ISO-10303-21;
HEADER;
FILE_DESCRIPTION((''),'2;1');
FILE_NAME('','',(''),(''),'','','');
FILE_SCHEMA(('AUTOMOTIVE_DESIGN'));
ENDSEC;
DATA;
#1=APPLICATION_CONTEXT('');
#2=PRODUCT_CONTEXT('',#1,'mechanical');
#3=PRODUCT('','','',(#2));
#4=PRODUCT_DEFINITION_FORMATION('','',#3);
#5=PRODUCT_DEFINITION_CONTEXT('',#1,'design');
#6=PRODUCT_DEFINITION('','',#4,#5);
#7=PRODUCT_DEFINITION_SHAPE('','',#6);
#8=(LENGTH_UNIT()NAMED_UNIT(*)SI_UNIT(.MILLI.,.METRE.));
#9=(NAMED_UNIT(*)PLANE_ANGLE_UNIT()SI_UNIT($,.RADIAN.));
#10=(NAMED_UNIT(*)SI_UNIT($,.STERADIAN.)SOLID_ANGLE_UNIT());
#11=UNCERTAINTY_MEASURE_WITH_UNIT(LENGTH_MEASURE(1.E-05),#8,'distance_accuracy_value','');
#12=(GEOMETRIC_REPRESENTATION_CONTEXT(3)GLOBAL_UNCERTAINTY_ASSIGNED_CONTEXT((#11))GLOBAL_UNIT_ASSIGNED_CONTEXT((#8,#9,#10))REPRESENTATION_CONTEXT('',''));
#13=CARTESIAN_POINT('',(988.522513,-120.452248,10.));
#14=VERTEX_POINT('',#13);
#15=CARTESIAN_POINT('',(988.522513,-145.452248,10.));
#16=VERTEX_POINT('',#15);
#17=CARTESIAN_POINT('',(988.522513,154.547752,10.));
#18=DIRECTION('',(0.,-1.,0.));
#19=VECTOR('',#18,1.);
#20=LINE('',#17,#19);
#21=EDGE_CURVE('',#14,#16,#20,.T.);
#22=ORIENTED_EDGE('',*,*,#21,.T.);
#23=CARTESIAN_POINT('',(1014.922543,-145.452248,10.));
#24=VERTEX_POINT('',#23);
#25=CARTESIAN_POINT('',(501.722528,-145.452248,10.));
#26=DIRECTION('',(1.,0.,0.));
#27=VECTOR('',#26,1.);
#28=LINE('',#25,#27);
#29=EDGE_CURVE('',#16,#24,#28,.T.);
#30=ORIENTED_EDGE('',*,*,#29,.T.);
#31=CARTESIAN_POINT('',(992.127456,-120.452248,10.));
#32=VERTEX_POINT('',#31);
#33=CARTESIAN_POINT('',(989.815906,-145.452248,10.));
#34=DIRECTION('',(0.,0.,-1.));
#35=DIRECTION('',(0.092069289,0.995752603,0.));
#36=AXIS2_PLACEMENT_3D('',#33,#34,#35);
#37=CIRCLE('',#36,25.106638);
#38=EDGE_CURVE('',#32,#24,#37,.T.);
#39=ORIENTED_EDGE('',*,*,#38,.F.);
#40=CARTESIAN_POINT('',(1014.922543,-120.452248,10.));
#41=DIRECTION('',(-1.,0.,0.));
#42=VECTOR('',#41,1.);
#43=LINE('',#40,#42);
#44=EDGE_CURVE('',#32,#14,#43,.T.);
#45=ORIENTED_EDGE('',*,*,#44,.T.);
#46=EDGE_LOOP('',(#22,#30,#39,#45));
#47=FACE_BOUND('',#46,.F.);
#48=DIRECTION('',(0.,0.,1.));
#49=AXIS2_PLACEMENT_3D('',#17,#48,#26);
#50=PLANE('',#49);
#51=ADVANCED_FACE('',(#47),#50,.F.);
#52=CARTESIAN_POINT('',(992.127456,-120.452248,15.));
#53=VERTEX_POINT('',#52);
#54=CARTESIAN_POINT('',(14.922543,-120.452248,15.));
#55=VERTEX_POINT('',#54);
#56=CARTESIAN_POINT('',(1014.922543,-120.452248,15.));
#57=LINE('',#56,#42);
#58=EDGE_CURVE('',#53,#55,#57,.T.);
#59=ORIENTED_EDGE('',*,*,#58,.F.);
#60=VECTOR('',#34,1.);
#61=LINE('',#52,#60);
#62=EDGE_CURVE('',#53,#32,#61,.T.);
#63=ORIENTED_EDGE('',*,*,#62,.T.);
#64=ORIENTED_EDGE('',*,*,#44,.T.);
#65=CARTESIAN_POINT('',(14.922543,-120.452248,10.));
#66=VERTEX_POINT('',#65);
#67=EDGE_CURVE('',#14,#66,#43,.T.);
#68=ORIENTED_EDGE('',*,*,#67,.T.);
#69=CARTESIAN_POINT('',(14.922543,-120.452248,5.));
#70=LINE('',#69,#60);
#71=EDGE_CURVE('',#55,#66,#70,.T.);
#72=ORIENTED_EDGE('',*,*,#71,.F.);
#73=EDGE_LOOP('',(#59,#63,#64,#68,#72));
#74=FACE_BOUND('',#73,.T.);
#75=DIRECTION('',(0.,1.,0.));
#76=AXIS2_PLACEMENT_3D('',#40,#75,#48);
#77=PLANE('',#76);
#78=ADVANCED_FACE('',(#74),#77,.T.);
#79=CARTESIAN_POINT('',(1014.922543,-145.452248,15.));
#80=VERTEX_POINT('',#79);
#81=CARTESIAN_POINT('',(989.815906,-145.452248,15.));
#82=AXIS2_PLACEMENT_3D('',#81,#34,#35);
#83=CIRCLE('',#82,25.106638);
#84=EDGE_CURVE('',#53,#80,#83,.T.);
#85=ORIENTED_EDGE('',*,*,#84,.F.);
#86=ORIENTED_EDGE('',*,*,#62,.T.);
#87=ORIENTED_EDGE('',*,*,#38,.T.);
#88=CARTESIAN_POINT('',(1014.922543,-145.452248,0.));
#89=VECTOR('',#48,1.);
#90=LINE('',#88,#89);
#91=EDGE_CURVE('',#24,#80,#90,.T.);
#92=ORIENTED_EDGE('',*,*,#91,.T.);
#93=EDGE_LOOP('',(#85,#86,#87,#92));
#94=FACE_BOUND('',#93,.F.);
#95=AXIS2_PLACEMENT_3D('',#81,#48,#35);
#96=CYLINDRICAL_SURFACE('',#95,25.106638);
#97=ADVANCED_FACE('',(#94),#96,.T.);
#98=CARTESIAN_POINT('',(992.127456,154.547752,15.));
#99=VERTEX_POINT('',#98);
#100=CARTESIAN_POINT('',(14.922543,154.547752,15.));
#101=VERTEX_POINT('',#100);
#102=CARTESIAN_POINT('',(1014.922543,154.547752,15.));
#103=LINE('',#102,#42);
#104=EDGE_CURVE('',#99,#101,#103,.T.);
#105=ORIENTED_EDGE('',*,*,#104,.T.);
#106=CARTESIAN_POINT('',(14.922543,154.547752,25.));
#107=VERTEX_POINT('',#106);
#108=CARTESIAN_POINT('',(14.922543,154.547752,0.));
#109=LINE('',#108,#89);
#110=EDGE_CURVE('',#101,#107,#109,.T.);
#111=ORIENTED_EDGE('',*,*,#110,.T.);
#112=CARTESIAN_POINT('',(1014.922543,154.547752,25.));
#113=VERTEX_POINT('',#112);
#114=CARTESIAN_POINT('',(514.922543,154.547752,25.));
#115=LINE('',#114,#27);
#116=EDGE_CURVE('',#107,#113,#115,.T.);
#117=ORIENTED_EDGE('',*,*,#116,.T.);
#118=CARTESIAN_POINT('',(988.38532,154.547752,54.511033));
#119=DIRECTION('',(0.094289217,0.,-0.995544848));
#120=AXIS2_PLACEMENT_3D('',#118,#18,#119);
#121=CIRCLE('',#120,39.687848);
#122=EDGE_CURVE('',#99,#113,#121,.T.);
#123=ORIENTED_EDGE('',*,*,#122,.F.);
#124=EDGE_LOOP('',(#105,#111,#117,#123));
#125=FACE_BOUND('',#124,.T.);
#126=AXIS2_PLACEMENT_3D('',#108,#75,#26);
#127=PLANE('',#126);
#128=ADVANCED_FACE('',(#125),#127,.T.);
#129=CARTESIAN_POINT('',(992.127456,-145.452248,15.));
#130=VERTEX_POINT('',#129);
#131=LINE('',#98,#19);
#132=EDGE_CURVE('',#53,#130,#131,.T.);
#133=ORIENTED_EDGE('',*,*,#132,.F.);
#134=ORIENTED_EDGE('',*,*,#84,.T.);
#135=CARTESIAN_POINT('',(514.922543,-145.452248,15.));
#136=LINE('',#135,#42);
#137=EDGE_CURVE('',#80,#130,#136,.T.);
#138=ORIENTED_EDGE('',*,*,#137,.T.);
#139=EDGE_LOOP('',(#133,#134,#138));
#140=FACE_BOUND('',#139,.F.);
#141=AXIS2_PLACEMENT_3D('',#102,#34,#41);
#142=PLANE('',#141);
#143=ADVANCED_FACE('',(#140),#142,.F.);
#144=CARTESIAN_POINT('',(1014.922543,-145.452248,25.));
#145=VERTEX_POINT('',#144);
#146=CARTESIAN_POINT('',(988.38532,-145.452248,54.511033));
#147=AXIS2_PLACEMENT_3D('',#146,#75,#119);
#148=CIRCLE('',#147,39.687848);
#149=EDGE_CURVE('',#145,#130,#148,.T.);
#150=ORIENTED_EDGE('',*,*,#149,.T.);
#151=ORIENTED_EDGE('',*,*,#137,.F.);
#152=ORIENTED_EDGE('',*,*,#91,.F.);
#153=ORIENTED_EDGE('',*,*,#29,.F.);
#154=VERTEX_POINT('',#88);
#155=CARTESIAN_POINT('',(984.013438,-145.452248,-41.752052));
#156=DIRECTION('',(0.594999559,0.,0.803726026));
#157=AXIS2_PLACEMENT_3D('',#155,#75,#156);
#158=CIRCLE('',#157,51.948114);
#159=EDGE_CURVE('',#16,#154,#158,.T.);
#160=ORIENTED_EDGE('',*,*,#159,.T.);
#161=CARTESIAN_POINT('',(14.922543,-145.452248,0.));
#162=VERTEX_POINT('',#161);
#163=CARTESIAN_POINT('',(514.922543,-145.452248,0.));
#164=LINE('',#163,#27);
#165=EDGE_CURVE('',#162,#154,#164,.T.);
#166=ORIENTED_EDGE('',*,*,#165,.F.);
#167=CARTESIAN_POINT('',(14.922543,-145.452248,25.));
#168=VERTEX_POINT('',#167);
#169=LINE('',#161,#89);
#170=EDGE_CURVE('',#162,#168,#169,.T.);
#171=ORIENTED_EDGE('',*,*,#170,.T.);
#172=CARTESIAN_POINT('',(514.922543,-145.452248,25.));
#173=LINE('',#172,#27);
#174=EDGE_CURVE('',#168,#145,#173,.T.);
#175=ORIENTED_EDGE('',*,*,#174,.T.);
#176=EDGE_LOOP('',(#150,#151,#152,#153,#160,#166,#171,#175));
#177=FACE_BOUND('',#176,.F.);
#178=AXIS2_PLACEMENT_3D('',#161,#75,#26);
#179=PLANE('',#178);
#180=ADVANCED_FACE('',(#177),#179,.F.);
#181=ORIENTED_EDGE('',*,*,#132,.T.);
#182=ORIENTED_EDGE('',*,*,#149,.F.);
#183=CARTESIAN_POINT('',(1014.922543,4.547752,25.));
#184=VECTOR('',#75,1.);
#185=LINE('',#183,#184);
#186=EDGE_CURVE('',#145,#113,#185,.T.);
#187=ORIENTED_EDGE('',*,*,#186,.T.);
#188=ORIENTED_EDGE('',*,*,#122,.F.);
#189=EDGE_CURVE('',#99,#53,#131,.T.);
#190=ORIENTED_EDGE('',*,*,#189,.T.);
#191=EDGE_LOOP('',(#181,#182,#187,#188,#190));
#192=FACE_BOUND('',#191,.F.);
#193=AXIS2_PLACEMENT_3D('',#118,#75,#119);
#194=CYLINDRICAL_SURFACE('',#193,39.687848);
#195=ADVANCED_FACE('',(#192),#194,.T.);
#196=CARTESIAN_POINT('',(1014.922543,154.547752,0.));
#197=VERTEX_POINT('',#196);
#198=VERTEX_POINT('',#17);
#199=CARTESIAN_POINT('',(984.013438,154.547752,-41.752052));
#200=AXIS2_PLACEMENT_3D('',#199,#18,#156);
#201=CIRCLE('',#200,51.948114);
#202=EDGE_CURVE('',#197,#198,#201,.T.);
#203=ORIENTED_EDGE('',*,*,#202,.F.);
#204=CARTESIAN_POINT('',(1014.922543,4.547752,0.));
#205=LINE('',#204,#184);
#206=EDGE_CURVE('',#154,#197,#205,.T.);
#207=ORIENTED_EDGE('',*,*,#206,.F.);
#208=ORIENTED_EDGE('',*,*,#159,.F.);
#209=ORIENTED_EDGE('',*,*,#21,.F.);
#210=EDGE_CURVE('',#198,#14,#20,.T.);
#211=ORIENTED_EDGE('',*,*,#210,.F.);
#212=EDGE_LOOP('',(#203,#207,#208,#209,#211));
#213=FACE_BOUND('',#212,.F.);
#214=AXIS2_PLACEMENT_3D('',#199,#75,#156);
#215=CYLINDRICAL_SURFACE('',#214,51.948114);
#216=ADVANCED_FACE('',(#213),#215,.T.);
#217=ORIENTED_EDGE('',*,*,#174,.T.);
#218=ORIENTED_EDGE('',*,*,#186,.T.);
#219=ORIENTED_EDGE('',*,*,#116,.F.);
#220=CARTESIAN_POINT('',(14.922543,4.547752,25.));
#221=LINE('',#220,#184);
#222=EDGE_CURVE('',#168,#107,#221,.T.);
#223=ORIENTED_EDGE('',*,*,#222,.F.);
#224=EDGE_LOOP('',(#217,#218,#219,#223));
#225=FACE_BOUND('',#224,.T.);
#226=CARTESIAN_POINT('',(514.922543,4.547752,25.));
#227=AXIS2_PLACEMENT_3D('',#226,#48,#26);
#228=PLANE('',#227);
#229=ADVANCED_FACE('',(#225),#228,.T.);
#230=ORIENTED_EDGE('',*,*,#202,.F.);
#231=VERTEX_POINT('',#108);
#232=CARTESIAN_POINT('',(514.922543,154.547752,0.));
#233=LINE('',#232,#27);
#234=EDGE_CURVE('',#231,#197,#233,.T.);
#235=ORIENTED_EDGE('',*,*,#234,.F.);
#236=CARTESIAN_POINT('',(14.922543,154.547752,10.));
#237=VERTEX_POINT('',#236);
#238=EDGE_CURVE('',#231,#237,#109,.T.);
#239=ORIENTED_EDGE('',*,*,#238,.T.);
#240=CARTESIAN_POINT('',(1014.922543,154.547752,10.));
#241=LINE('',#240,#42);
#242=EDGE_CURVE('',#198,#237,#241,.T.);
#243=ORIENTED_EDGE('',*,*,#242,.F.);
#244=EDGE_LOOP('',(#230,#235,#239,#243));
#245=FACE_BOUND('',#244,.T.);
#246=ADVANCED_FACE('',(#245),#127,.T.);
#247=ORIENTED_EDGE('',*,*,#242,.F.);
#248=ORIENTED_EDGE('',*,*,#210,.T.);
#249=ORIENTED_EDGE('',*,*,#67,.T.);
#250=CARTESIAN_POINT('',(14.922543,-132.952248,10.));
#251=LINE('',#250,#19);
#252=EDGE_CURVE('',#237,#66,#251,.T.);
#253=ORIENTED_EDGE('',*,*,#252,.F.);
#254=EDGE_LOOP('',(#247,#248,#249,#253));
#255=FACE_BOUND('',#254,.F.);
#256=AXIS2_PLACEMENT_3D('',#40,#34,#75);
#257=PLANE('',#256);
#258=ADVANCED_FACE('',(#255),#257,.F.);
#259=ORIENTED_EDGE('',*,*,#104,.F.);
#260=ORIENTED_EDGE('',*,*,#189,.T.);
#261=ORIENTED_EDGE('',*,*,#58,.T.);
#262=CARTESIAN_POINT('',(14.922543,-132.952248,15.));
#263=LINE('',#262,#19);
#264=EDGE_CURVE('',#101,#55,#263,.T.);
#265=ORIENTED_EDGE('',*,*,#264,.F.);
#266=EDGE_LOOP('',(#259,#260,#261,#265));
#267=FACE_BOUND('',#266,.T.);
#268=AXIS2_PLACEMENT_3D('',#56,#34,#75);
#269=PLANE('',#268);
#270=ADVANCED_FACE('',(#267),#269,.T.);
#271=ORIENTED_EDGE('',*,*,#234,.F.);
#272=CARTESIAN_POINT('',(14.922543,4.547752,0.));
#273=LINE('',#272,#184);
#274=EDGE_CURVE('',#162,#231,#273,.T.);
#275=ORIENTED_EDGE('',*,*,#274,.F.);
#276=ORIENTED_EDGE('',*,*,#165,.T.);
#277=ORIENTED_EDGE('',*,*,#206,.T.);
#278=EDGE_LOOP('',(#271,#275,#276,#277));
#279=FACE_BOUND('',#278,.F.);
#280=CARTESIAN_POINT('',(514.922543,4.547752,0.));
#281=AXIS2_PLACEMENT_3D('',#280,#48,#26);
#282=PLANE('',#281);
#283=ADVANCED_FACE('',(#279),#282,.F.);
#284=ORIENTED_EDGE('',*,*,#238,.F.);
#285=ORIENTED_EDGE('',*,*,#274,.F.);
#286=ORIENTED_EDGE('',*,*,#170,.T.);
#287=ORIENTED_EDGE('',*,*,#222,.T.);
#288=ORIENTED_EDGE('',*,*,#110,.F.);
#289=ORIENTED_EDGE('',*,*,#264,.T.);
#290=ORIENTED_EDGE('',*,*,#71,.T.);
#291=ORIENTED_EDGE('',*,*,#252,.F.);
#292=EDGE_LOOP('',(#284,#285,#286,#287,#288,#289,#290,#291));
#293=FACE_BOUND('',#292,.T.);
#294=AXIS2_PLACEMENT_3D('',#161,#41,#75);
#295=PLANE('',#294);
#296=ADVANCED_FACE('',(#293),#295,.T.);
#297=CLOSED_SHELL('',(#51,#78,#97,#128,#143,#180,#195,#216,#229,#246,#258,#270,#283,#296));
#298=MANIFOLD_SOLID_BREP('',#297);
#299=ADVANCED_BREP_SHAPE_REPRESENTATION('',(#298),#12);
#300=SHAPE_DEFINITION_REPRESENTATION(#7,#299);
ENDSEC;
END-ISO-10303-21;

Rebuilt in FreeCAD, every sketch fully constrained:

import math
import FreeCAD as App
import Part
import Sketcher
from FreeCAD import Vector
Q = App.Units.Quantity

doc = App.newDocument("Part")
body = doc.addObject("PartDesign::Body", "Body")

# Sketch on XY plane
sketch1 = body.newObject("Sketcher::SketchObject", "Sketch")
sketch1.AttachmentSupport = (doc.getObject("XY_Plane"), [""])
sketch1.MapMode = "FlatFace"
sketch1.addGeometry([
    Part.LineSegment(Vector(15, 155, 0), Vector(15, -145, 0)),
    Part.LineSegment(Vector(15, -145, 0), Vector(1015, -145, 0)),
    Part.LineSegment(Vector(1015, -145, 0), Vector(1015, 155, 0)),
    Part.LineSegment(Vector(1015, 155, 0), Vector(15, 155, 0)),
], False)
sketch1.addConstraint([
    Sketcher.Constraint("Coincident", 0, 2, 1, 1),
    Sketcher.Constraint("Coincident", 1, 2, 2, 1),
    Sketcher.Constraint("Coincident", 2, 2, 3, 1),
    Sketcher.Constraint("Coincident", 3, 2, 0, 1),
    Sketcher.Constraint("Vertical", 0),
    Sketcher.Constraint("Horizontal", 1),
    Sketcher.Constraint("Vertical", 2),
    Sketcher.Constraint("Horizontal", 3),
    Sketcher.Constraint("DistanceX", 1, 1, 1, 2, Q("1000 mm")),
    Sketcher.Constraint("DistanceY", 0, 2, 0, 1, Q("300 mm")),
    Sketcher.Constraint("DistanceX", -1, 1, 0, 2, Q("14.922543 mm")),
    Sketcher.Constraint("DistanceY", 0, 2, -1, 1, Q("145.452248 mm")),
])
pad1 = body.newObject("PartDesign::Pad", "Pad")
pad1.Profile = sketch1
pad1.Length = 25

# Sketch on YZ plane
sketch2 = body.newObject("Sketcher::SketchObject", "Sketch001")
sketch2.AttachmentSupport = (doc.getObject("YZ_Plane"), [""])
sketch2.MapMode = "FlatFace"
sketch2.AttachmentOffset = App.Placement(Vector(0, 0, 1014.922543), App.Rotation())
sketch2.addGeometry([
    Part.LineSegment(Vector(-120, 15, 0), Vector(-120, 10, 0)),
    Part.LineSegment(Vector(-120, 10, 0), Vector(155, 10, 0)),
    Part.LineSegment(Vector(155, 10, 0), Vector(155, 15, 0)),
    Part.LineSegment(Vector(155, 15, 0), Vector(-120, 15, 0)),
], False)
sketch2.addConstraint([
    Sketcher.Constraint("Coincident", 0, 2, 1, 1),
    Sketcher.Constraint("Coincident", 1, 2, 2, 1),
    Sketcher.Constraint("Coincident", 2, 2, 3, 1),
    Sketcher.Constraint("Coincident", 3, 2, 0, 1),
    Sketcher.Constraint("Vertical", 0),
    Sketcher.Constraint("Horizontal", 1),
    Sketcher.Constraint("Vertical", 2),
    Sketcher.Constraint("Horizontal", 3),
    Sketcher.Constraint("DistanceX", 1, 1, 1, 2, Q("275 mm")),
    Sketcher.Constraint("DistanceY", 0, 2, 0, 1, Q("5 mm")),
    Sketcher.Constraint("DistanceY", -1, 1, 0, 2, Q("10 mm")),
    Sketcher.Constraint("DistanceX", 0, 2, -1, 1, Q("120.452248 mm")),
])
pocket1 = body.newObject("PartDesign::Pocket", "Pocket")
pocket1.Profile = sketch2
pocket1.Type = "ThroughAll"

# Sketch on XZ plane
sketch3 = body.newObject("Sketcher::SketchObject", "Sketch002")
sketch3.AttachmentSupport = (doc.getObject("XZ_Plane"), [""])
sketch3.MapMode = "FlatFace"
sketch3.AttachmentOffset = App.Placement(Vector(0, 0, -154.547752), App.Rotation())
sketch3.addGeometry([
    Part.ArcOfCircle(Part.Circle(Vector(988, 55, 0), Vector(0, 0, 1), 40), math.radians(-85), math.radians(-48)),
    Part.LineSegment(Vector(1015, 25, 0), Vector(1015, 15, 0)),
    Part.LineSegment(Vector(1015, 15, 0), Vector(992, 15, 0)),
], False)
sketch3.addConstraint([
    Sketcher.Constraint("Coincident", 0, 2, 1, 1),
    Sketcher.Constraint("Coincident", 1, 2, 2, 1),
    Sketcher.Constraint("Coincident", 2, 2, 0, 1),
    Sketcher.Constraint("Vertical", 1),
    Sketcher.Constraint("Horizontal", 2),
    Sketcher.Constraint("DistanceY", 1, 2, 1, 1, Q("10 mm")),
    Sketcher.Constraint("DistanceY", -1, 1, 0, 2, Q("25 mm")),
    Sketcher.Constraint("Radius", 0, Q("39.687848 mm")),
    Sketcher.Constraint("DistanceX", 2, 2, 2, 1, Q("22.795088 mm")),
    Sketcher.Constraint("DistanceX", -1, 1, 0, 3, Q("988.38532 mm")),
])
pocket2 = body.newObject("PartDesign::Pocket", "Pocket001")
pocket2.Profile = sketch3
pocket2.Type = "ThroughAll"
pocket2.Reversed = True

# Sketch on XZ plane
sketch4 = body.newObject("Sketcher::SketchObject", "Sketch003")
sketch4.AttachmentSupport = (doc.getObject("XZ_Plane"), [""])
sketch4.MapMode = "FlatFace"
sketch4.AttachmentOffset = App.Placement(Vector(0, 0, -154.547752), App.Rotation())
sketch4.addGeometry([
    Part.ArcOfCircle(Part.Circle(Vector(984, -42, 0), Vector(0, 0, 1), 52), math.radians(53), math.radians(85)),
    Part.LineSegment(Vector(989, 10, 0), Vector(1015, 10, 0)),
    Part.LineSegment(Vector(1015, 10, 0), Vector(1015, 0, 0)),
], False)
sketch4.addConstraint([
    Sketcher.Constraint("Coincident", 0, 2, 1, 1),
    Sketcher.Constraint("Coincident", 1, 2, 2, 1),
    Sketcher.Constraint("Coincident", 2, 2, 0, 1),
    Sketcher.Constraint("Horizontal", 1),
    Sketcher.Constraint("Vertical", 2),
    Sketcher.Constraint("PointOnObject", 2, 2, -1),
    Sketcher.Constraint("DistanceY", 2, 2, 2, 1, Q("10 mm")),
    Sketcher.Constraint("Radius", 0, Q("51.948114 mm")),
    Sketcher.Constraint("DistanceX", 1, 1, 1, 2, Q("26.400031 mm")),
    Sketcher.Constraint("DistanceX", -1, 1, 0, 3, Q("984.013438 mm")),
])
pocket3 = body.newObject("PartDesign::Pocket", "Pocket002")
pocket3.Profile = sketch4
pocket3.Type = "ThroughAll"
pocket3.Reversed = True

# Sketch on XY plane
sketch5 = body.newObject("Sketcher::SketchObject", "Sketch004")
sketch5.AttachmentSupport = (doc.getObject("XY_Plane"), [""])
sketch5.MapMode = "FlatFace"
sketch5.AttachmentOffset = App.Placement(Vector(0, 0, 15), App.Rotation())
sketch5.addGeometry([
    Part.ArcOfCircle(Part.Circle(Vector(990, -145, 0), Vector(0, 0, 1), 25), math.radians(0), math.radians(85)),
    Part.LineSegment(Vector(1015, -145, 0), Vector(1015, -120, 0)),
    Part.LineSegment(Vector(1015, -120, 0), Vector(992, -120, 0)),
], False)
sketch5.addConstraint([
    Sketcher.Constraint("Tangent", 0, 1, 1, 1),
    Sketcher.Constraint("Coincident", 1, 2, 2, 1),
    Sketcher.Constraint("Coincident", 2, 2, 0, 2),
    Sketcher.Constraint("Vertical", 1),
    Sketcher.Constraint("Horizontal", 2),
    Sketcher.Constraint("DistanceY", 1, 1, 1, 2, Q("25 mm")),
    Sketcher.Constraint("Radius", 0, Q("25.106638 mm")),
    Sketcher.Constraint("DistanceX", -1, 1, 0, 3, Q("989.815906 mm")),
    Sketcher.Constraint("DistanceY", 0, 3, -1, 1, Q("145.452248 mm")),
])
pocket4 = body.newObject("PartDesign::Pocket", "Pocket003")
pocket4.Profile = sketch5
pocket4.Length = 5

doc.recompute()
